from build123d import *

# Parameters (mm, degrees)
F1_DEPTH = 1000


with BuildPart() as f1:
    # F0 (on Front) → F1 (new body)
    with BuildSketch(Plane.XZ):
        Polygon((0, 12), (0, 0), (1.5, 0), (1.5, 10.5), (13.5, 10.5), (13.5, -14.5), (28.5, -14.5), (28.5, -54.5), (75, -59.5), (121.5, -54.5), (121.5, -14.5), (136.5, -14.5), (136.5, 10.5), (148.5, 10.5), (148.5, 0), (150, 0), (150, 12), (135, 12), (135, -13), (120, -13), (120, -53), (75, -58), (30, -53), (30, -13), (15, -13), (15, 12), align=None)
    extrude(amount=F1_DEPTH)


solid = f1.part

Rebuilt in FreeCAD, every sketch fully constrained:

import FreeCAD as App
import Part
import Sketcher
Q = App.Units.Quantity

doc = App.newDocument("Part")
body = doc.addObject("PartDesign::Body", "Body")

# Sketch on XZ plane
sketch1 = body.newObject("Sketcher::SketchObject", "Sketch")
sketch1.AttachmentSupport = (doc.getObject("XZ_Plane"), [""])
sketch1.MapMode = "FlatFace"
sketch1.addGeometry(Part.LineSegment(App.Vector(0, 12, 0), App.Vector(0, 0, 0)), False)
sketch1.addGeometry(Part.LineSegment(App.Vector(0, 0, 0), App.Vector(1.5, 0, 0)), False)
sketch1.addGeometry(Part.LineSegment(App.Vector(1.5, 0, 0), App.Vector(1.5, 10.5, 0)), False)
sketch1.addGeometry(Part.LineSegment(App.Vector(1.5, 10.5, 0), App.Vector(13.5, 10.5, 0)), False)
sketch1.addGeometry(Part.LineSegment(App.Vector(13.5, 10.5, 0), App.Vector(13.5, -14.5, 0)), False)
sketch1.addGeometry(Part.LineSegment(App.Vector(13.5, -14.5, 0), App.Vector(28.5, -14.5, 0)), False)
sketch1.addGeometry(Part.LineSegment(App.Vector(28.5, -14.5, 0), App.Vector(28.5, -54.5, 0)), False)
sketch1.addGeometry(Part.LineSegment(App.Vector(28.5, -54.5, 0), App.Vector(75, -59.5, 0)), False)
sketch1.addGeometry(Part.LineSegment(App.Vector(75, -59.5, 0), App.Vector(121.5, -54.5, 0)), False)
sketch1.addGeometry(Part.LineSegment(App.Vector(121.5, -54.5, 0), App.Vector(121.5, -14.5, 0)), False)
sketch1.addGeometry(Part.LineSegment(App.Vector(121.5, -14.5, 0), App.Vector(136.5, -14.5, 0)), False)
sketch1.addGeometry(Part.LineSegment(App.Vector(136.5, -14.5, 0), App.Vector(136.5, 10.5, 0)), False)
sketch1.addGeometry(Part.LineSegment(App.Vector(136.5, 10.5, 0), App.Vector(148.5, 10.5, 0)), False)
sketch1.addGeometry(Part.LineSegment(App.Vector(148.5, 10.5, 0), App.Vector(148.5, 0, 0)), False)
sketch1.addGeometry(Part.LineSegment(App.Vector(148.5, 0, 0), App.Vector(150, 0, 0)), False)
sketch1.addGeometry(Part.LineSegment(App.Vector(150, 0, 0), App.Vector(150, 12, 0)), False)
sketch1.addGeometry(Part.LineSegment(App.Vector(150, 12, 0), App.Vector(135, 12, 0)), False)
sketch1.addGeometry(Part.LineSegment(App.Vector(135, 12, 0), App.Vector(135, -13, 0)), False)
sketch1.addGeometry(Part.LineSegment(App.Vector(135, -13, 0), App.Vector(120, -13, 0)), False)
sketch1.addGeometry(Part.LineSegment(App.Vector(120, -13, 0), App.Vector(120, -53, 0)), False)
sketch1.addGeometry(Part.LineSegment(App.Vector(120, -53, 0), App.Vector(75, -58, 0)), False)
sketch1.addGeometry(Part.LineSegment(App.Vector(75, -58, 0), App.Vector(30, -53, 0)), False)
sketch1.addGeometry(Part.LineSegment(App.Vector(30, -53, 0), App.Vector(30, -13, 0)), False)
sketch1.addGeometry(Part.LineSegment(App.Vector(30, -13, 0), App.Vector(15, -13, 0)), False)
sketch1.addGeometry(Part.LineSegment(App.Vector(15, -13, 0), App.Vector(15, 12, 0)), False)
sketch1.addGeometry(Part.LineSegment(App.Vector(15, 12, 0), App.Vector(0, 12, 0)), False)
sketch1.addConstraint(Sketcher.Constraint("Coincident", 0, 2, 1, 1))
sketch1.addConstraint(Sketcher.Constraint("Coincident", 1, 2, 2, 1))
sketch1.addConstraint(Sketcher.Constraint("Coincident", 2, 2, 3, 1))
sketch1.addConstraint(Sketcher.Constraint("Coincident", 3, 2, 4, 1))
sketch1.addConstraint(Sketcher.Constraint("Coincident", 4, 2, 5, 1))
sketch1.addConstraint(Sketcher.Constraint("Coincident", 5, 2, 6, 1))
sketch1.addConstraint(Sketcher.Constraint("Coincident", 6, 2, 7, 1))
sketch1.addConstraint(Sketcher.Constraint("Coincident", 7, 2, 8, 1))
sketch1.addConstraint(Sketcher.Constraint("Coincident", 8, 2, 9, 1))
sketch1.addConstraint(Sketcher.Constraint("Coincident", 9, 2, 10, 1))
sketch1.addConstraint(Sketcher.Constraint("Coincident", 10, 2, 11, 1))
sketch1.addConstraint(Sketcher.Constraint("Coincident", 11, 2, 12, 1))
sketch1.addConstraint(Sketcher.Constraint("Coincident", 12, 2, 13, 1))
sketch1.addConstraint(Sketcher.Constraint("Coincident", 13, 2, 14, 1))
sketch1.addConstraint(Sketcher.Constraint("Coincident", 14, 2, 15, 1))
sketch1.addConstraint(Sketcher.Constraint("Coincident", 15, 2, 16, 1))
sketch1.addConstraint(Sketcher.Constraint("Coincident", 16, 2, 17, 1))
sketch1.addConstraint(Sketcher.Constraint("Coincident", 17, 2, 18, 1))
sketch1.addConstraint(Sketcher.Constraint("Coincident", 18, 2, 19, 1))
sketch1.addConstraint(Sketcher.Constraint("Coincident", 19, 2, 20, 1))
sketch1.addConstraint(Sketcher.Constraint("Coincident", 20, 2, 21, 1))
sketch1.addConstraint(Sketcher.Constraint("Coincident", 21, 2, 22, 1))
sketch1.addConstraint(Sketcher.Constraint("Coincident", 22, 2, 23, 1))
sketch1.addConstraint(Sketcher.Constraint("Coincident", 23, 2, 24, 1))
sketch1.addConstraint(Sketcher.Constraint("Coincident", 24, 2, 25, 1))
sketch1.addConstraint(Sketcher.Constraint("Coincident", 25, 2, 0, 1))
sketch1.addConstraint(Sketcher.Constraint("Vertical", 0))
sketch1.addConstraint(Sketcher.Constraint("Horizontal", 1))
sketch1.addConstraint(Sketcher.Constraint("Vertical", 2))
sketch1.addConstraint(Sketcher.Constraint("Horizontal", 3))
sketch1.addConstraint(Sketcher.Constraint("Vertical", 4))
sketch1.addConstraint(Sketcher.Constraint("Horizontal", 5))
sketch1.addConstraint(Sketcher.Constraint("Vertical", 6))
sketch1.addConstraint(Sketcher.Constraint("Vertical", 9))
sketch1.addConstraint(Sketcher.Constraint("Horizontal", 10))
sketch1.addConstraint(Sketcher.Constraint("Vertical", 11))
sketch1.addConstraint(Sketcher.Constraint("Horizontal", 12))
sketch1.addConstraint(Sketcher.Constraint("Vertical", 13))
sketch1.addConstraint(Sketcher.Constraint("Horizontal", 14))
sketch1.addConstraint(Sketcher.Constraint("Vertical", 15))
sketch1.addConstraint(Sketcher.Constraint("Horizontal", 16))
sketch1.addConstraint(Sketcher.Constraint("Vertical", 17))
sketch1.addConstraint(Sketcher.Constraint("Horizontal", 18))
sketch1.addConstraint(Sketcher.Constraint("Vertical", 19))
sketch1.addConstraint(Sketcher.Constraint("Vertical", 22))
sketch1.addConstraint(Sketcher.Constraint("Horizontal", 23))
sketch1.addConstraint(Sketcher.Constraint("Vertical", 24))
sketch1.addConstraint(Sketcher.Constraint("Horizontal", 25))
sketch1.addConstraint(Sketcher.Constraint("Coincident", 0, 2, -1, 1))
sketch1.addConstraint(Sketcher.Constraint("PointOnObject", 13, 2, -1))
sketch1.addConstraint(Sketcher.Constraint("Horizontal", 6, 2, 8, 2))
sketch1.addConstraint(Sketcher.Constraint("Horizontal", 5, 2, 9, 2))
sketch1.addConstraint(Sketcher.Constraint("Horizontal", 3, 2, 11, 2))
sketch1.addConstraint(Sketcher.Constraint("Horizontal", 19, 2, 21, 2))
sketch1.addConstraint(Sketcher.Constraint("Horizontal", 18, 2, 22, 2))
sketch1.addConstraint(Sketcher.Constraint("Horizontal", 16, 2, 24, 2))
sketch1.addConstraint(Sketcher.Constraint("Vertical", 7, 2, 20, 2))
sketch1.addConstraint(Sketcher.Constraint("Equal", 5, 10))
sketch1.addConstraint(Sketcher.Constraint("Equal", 3, 12))
sketch1.addConstraint(Sketcher.Constraint("Equal", 1, 14))
sketch1.addConstraint(Sketcher.Constraint("Equal", 10, 16))
sketch1.addConstraint(Sketcher.Constraint("Equal", 16, 18))
sketch1.addConstraint(Sketcher.Constraint("Equal", 18, 23))
sketch1.addConstraint(Sketcher.Constraint("Equal", 23, 25))
sketch1.addConstraint(Sketcher.Constraint("Equal", 12, 0))
sketch1.addConstraint(Sketcher.Constraint("Equal", 11, 17))
sketch1.addConstraint(Sketcher.Constraint("Equal", 9, 19))
sketch1.addConstraint(Sketcher.Constraint("Equal", 7, 8))
sketch1.addConstraint(Sketcher.Constraint("DistanceX", 3, 1, 3, 2, Q("12 mm")))
sketch1.addConstraint(Sketcher.Constraint("DistanceX", 5, 1, 5, 2, Q("15 mm")))
sketch1.addConstraint(Sketcher.Constraint("DistanceY", 4, 2, 4, 1, Q("25 mm")))
sketch1.addConstraint(Sketcher.Constraint("DistanceY", 6, 2, 6, 1, Q("40 mm")))
sketch1.addConstraint(Sketcher.Constraint("DistanceX", 1, 1, 1, 2, Q("1.5 mm")))
sketch1.addConstraint(Sketcher.Constraint("DistanceY", 2, 1, 2, 2, Q("10.5 mm")))
sketch1.addConstraint(Sketcher.Constraint("DistanceX", -1, 1, 7, 2, Q("75 mm")))
sketch1.addConstraint(Sketcher.Constraint("DistanceY", 20, 2, -1, 1, Q("58 mm")))
sketch1.addConstraint(Sketcher.Constraint("DistanceY", 7, 2, 6, 2, Q("5 mm")))
pad1 = body.newObject("PartDesign::Pad", "Pad")
pad1.Profile = sketch1
pad1.Length = 1000

doc.recompute()
